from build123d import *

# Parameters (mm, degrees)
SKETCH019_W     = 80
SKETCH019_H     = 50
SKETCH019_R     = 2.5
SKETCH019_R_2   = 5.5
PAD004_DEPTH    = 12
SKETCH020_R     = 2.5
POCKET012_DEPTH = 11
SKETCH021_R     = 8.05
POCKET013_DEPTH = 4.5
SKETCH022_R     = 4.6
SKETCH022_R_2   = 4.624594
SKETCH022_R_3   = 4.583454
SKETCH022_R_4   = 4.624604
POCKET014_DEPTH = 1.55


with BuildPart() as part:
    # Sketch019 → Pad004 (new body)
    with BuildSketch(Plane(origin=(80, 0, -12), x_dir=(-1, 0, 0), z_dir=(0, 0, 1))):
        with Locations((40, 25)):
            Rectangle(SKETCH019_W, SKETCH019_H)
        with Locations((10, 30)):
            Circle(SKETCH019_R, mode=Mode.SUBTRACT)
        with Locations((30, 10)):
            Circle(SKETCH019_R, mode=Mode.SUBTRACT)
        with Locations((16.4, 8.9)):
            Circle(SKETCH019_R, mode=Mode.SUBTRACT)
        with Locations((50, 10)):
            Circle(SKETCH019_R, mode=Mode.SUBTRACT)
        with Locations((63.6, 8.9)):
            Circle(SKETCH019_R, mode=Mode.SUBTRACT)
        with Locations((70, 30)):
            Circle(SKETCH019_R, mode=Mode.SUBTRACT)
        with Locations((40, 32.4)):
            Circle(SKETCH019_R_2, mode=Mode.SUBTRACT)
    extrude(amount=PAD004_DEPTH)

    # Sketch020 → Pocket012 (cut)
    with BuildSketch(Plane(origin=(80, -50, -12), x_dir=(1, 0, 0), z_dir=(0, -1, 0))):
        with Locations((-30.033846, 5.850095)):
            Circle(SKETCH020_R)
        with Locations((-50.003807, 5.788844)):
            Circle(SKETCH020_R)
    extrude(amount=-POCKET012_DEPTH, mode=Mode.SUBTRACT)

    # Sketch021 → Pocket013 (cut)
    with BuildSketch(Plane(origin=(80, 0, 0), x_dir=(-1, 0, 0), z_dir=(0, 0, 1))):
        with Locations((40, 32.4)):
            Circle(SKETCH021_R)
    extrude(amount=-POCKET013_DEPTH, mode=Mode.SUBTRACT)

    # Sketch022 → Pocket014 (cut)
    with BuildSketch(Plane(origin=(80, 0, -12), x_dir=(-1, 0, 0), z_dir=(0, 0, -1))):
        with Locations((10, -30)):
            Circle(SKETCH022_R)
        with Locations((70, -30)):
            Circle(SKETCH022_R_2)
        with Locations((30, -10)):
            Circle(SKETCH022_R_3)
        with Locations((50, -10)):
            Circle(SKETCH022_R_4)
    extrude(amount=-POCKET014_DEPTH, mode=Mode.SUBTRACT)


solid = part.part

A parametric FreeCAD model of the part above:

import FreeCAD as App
import Part
import Sketcher

V = App.Vector


def add_polygon(sketch, points):
    """Adds a closed chain of lines whose ends are joined by coincident constraints."""
    first, n = sketch.GeometryCount, len(points)
    for a, b in zip(points, points[1:] + points[:1]):
        sketch.addGeometry(Part.LineSegment(App.Vector(*a, 0), App.Vector(*b, 0)), False)
    for i in range(n):
        sketch.addConstraint(Sketcher.Constraint("Coincident", first + i, 2, first + (i + 1) % n, 1))

doc = App.newDocument("Part")
body = doc.addObject("PartDesign::Body", "Body")

sketch1 = body.newObject("Sketcher::SketchObject", "Sketch")
sketch1.AttachmentSupport = (doc.getObject("XY_Plane"), [""])
sketch1.MapMode = "FlatFace"
sketch1.AttachmentOffset = App.Placement(V(0, 0, -12), App.Rotation())
add_polygon(sketch1, [(80, -50), (80, 0), (0, 0), (0, -50)])
sketch1.addGeometry(Part.Circle(V(63.6, -8.9, 0), V(0, 0, 1), 2.5), False)
sketch1.addGeometry(Part.Circle(V(50, -10, 0), V(0, 0, 1), 2.5), False)
sketch1.addGeometry(Part.Circle(V(30, -10, 0), V(0, 0, 1), 2.5), False)
sketch1.addGeometry(Part.Circle(V(16.4, -8.9, 0), V(0, 0, 1), 2.5), False)
sketch1.addGeometry(Part.Circle(V(70, -30, 0), V(0, 0, 1), 2.5), False)
sketch1.addGeometry(Part.Circle(V(10, -30, 0), V(0, 0, 1), 2.5), False)
sketch1.addGeometry(Part.Circle(V(40, -32.4, 0), V(0, 0, 1), 5.5), False)
sketch1.addConstraint(Sketcher.Constraint("Vertical", 0))
sketch1.addConstraint(Sketcher.Constraint("Horizontal", 1))
sketch1.addConstraint(Sketcher.Constraint("Vertical", 2))
sketch1.addConstraint(Sketcher.Constraint("Horizontal", 3))
sketch1.addConstraint(Sketcher.Constraint("Coincident", 1, 2, -1, 1))
sketch1.addConstraint(Sketcher.Constraint("Equal", 4, 5))
sketch1.addConstraint(Sketcher.Constraint("Equal", 5, 6))
sketch1.addConstraint(Sketcher.Constraint("Equal", 6, 7))
sketch1.addConstraint(Sketcher.Constraint("Equal", 7, 8))
sketch1.addConstraint(Sketcher.Constraint("Equal", 8, 9))
sketch1.addConstraint(Sketcher.Constraint("Horizontal", 5, 3, 6, 3))
sketch1.addConstraint(Sketcher.Constraint("Horizontal", 4, 3, 7, 3))
sketch1.addConstraint(Sketcher.Constraint("Horizontal", 8, 3, 9, 3))
sketch1.addConstraint(Sketcher.Constraint("Diameter", 4, 5.0))
sketch1.addConstraint(Sketcher.Constraint("Diameter", 10, 11.0))
sketch1.addConstraint(Sketcher.Constraint("DistanceX", 1, 2, 1, 1, 80.0))
sketch1.addConstraint(Sketcher.Constraint("DistanceY", 0, 1, 0, 2, 50.0))
sketch1.addConstraint(Sketcher.Constraint("DistanceX", -1, 1, 5, 3, 50.0))
sketch1.addConstraint(Sketcher.Constraint("DistanceY", 5, 3, -1, 1, 10.0))
sketch1.addConstraint(Sketcher.Constraint("DistanceX", -1, 1, 6, 3, 30.0))
sketch1.addConstraint(Sketcher.Constraint("DistanceX", -1, 1, 8, 3, 70.0))
sketch1.addConstraint(Sketcher.Constraint("DistanceY", 8, 3, -1, 1, 30.0))
sketch1.addConstraint(Sketcher.Constraint("DistanceX", -1, 1, 9, 3, 10.0))
sketch1.addConstraint(Sketcher.Constraint("DistanceX", -1, 1, 10, 3, 40.0))
sketch1.addConstraint(Sketcher.Constraint("DistanceX", -1, 1, 4, 3, 63.6))
sketch1.addConstraint(Sketcher.Constraint("DistanceY", 4, 3, -1, 1, 8.9))
sketch1.addConstraint(Sketcher.Constraint("DistanceX", -1, 1, 7, 3, 16.4))
sketch1.addConstraint(Sketcher.Constraint("DistanceY", 10, 3, -1, 1, 32.4))
pad1 = body.newObject("PartDesign::Pad", "Pad")
pad1.Profile = sketch1
pad1.Length = 12

sketch2 = body.newObject("Sketcher::SketchObject", "Sketch001")
sketch2.AttachmentSupport = (doc.getObject("XZ_Plane"), [""])
sketch2.MapMode = "FlatFace"
sketch2.AttachmentOffset = App.Placement(V(0, 0, 50), App.Rotation())
sketch2.addGeometry(Part.Circle(V(49.966154, -6.149905, 0), V(0, 0, 1), 2.5), False)
sketch2.addGeometry(Part.Circle(V(29.996193, -6.211156, 0), V(0, 0, 1), 2.5), False)
sketch2.addConstraint(Sketcher.Constraint("Equal", 0, 1))
sketch2.addConstraint(Sketcher.Constraint("Diameter", 0, 5.0))
sketch2.addConstraint(Sketcher.Constraint("DistanceX", 1, 3, 0, 3, 19.969961))
sketch2.addConstraint(Sketcher.Constraint("DistanceY", 1, 3, 0, 3, 0.061251))
sketch2.addConstraint(Sketcher.Constraint("DistanceX", -1, 1, 0, 3, 49.966154))
sketch2.addConstraint(Sketcher.Constraint("DistanceY", 0, 3, -1, 1, 6.149905))
pocket1 = body.newObject("PartDesign::Pocket", "Pocket")
pocket1.Profile = sketch2
pocket1.Length = 11

sketch3 = body.newObject("Sketcher::SketchObject", "Sketch002")
sketch3.AttachmentSupport = (doc.getObject("XY_Plane"), [""])
sketch3.MapMode = "FlatFace"
sketch3.addGeometry(Part.Circle(V(40, -32.4, 0), V(0, 0, 1), 8.05), False)
sketch3.addConstraint(Sketcher.Constraint("Diameter", 0, 16.1))
sketch3.addConstraint(Sketcher.Constraint("DistanceX", -1, 1, 0, 3, 40.0))
sketch3.addConstraint(Sketcher.Constraint("DistanceY", 0, 3, -1, 1, 32.4))
pocket2 = body.newObject("PartDesign::Pocket", "Pocket001")
pocket2.Profile = sketch3
pocket2.Length = 4.5

sketch4 = body.newObject("Sketcher::SketchObject", "Sketch003")
sketch4.AttachmentSupport = (doc.getObject("XY_Plane"), [""])
sketch4.MapMode = "FlatFace"
sketch4.AttachmentOffset = App.Placement(V(0, 0, -12), App.Rotation())
sketch4.addGeometry(Part.Circle(V(70, -30, 0), V(0, 0, 1), 4.6), False)
sketch4.addGeometry(Part.Circle(V(10, -30, 0), V(0, 0, 1), 4.624594), False)
sketch4.addGeometry(Part.Circle(V(50, -10, 0), V(0, 0, 1), 4.583454), False)
sketch4.addGeometry(Part.Circle(V(30, -10, 0), V(0, 0, 1), 4.624604), False)
sketch4.addConstraint(Sketcher.Constraint("Horizontal", 0, 3, 1, 3))
sketch4.addConstraint(Sketcher.Constraint("Horizontal", 2, 3, 3, 3))
sketch4.addConstraint(Sketcher.Constraint("Diameter", 0, 9.2))
sketch4.addConstraint(Sketcher.Constraint("DistanceX", -1, 1, 0, 3, 70.0))
sketch4.addConstraint(Sketcher.Constraint("DistanceY", 0, 3, -1, 1, 30.0))
sketch4.addConstraint(Sketcher.Constraint("DistanceX", -1, 1, 1, 3, 10.0))
sketch4.addConstraint(Sketcher.Constraint("DistanceX", -1, 1, 2, 3, 50.0))
sketch4.addConstraint(Sketcher.Constraint("DistanceY", 2, 3, -1, 1, 10.0))
sketch4.addConstraint(Sketcher.Constraint("DistanceX", -1, 1, 3, 3, 30.0))
sketch4.addConstraint(Sketcher.Constraint("Diameter", 1, 9.249188))
sketch4.addConstraint(Sketcher.Constraint("Diameter", 2, 9.166908))
sketch4.addConstraint(Sketcher.Constraint("Diameter", 3, 9.249208))
pocket3 = body.newObject("PartDesign::Pocket", "Pocket002")
pocket3.Profile = sketch4
pocket3.Length = 1.55
pocket3.Reversed = True

doc.recompute()
